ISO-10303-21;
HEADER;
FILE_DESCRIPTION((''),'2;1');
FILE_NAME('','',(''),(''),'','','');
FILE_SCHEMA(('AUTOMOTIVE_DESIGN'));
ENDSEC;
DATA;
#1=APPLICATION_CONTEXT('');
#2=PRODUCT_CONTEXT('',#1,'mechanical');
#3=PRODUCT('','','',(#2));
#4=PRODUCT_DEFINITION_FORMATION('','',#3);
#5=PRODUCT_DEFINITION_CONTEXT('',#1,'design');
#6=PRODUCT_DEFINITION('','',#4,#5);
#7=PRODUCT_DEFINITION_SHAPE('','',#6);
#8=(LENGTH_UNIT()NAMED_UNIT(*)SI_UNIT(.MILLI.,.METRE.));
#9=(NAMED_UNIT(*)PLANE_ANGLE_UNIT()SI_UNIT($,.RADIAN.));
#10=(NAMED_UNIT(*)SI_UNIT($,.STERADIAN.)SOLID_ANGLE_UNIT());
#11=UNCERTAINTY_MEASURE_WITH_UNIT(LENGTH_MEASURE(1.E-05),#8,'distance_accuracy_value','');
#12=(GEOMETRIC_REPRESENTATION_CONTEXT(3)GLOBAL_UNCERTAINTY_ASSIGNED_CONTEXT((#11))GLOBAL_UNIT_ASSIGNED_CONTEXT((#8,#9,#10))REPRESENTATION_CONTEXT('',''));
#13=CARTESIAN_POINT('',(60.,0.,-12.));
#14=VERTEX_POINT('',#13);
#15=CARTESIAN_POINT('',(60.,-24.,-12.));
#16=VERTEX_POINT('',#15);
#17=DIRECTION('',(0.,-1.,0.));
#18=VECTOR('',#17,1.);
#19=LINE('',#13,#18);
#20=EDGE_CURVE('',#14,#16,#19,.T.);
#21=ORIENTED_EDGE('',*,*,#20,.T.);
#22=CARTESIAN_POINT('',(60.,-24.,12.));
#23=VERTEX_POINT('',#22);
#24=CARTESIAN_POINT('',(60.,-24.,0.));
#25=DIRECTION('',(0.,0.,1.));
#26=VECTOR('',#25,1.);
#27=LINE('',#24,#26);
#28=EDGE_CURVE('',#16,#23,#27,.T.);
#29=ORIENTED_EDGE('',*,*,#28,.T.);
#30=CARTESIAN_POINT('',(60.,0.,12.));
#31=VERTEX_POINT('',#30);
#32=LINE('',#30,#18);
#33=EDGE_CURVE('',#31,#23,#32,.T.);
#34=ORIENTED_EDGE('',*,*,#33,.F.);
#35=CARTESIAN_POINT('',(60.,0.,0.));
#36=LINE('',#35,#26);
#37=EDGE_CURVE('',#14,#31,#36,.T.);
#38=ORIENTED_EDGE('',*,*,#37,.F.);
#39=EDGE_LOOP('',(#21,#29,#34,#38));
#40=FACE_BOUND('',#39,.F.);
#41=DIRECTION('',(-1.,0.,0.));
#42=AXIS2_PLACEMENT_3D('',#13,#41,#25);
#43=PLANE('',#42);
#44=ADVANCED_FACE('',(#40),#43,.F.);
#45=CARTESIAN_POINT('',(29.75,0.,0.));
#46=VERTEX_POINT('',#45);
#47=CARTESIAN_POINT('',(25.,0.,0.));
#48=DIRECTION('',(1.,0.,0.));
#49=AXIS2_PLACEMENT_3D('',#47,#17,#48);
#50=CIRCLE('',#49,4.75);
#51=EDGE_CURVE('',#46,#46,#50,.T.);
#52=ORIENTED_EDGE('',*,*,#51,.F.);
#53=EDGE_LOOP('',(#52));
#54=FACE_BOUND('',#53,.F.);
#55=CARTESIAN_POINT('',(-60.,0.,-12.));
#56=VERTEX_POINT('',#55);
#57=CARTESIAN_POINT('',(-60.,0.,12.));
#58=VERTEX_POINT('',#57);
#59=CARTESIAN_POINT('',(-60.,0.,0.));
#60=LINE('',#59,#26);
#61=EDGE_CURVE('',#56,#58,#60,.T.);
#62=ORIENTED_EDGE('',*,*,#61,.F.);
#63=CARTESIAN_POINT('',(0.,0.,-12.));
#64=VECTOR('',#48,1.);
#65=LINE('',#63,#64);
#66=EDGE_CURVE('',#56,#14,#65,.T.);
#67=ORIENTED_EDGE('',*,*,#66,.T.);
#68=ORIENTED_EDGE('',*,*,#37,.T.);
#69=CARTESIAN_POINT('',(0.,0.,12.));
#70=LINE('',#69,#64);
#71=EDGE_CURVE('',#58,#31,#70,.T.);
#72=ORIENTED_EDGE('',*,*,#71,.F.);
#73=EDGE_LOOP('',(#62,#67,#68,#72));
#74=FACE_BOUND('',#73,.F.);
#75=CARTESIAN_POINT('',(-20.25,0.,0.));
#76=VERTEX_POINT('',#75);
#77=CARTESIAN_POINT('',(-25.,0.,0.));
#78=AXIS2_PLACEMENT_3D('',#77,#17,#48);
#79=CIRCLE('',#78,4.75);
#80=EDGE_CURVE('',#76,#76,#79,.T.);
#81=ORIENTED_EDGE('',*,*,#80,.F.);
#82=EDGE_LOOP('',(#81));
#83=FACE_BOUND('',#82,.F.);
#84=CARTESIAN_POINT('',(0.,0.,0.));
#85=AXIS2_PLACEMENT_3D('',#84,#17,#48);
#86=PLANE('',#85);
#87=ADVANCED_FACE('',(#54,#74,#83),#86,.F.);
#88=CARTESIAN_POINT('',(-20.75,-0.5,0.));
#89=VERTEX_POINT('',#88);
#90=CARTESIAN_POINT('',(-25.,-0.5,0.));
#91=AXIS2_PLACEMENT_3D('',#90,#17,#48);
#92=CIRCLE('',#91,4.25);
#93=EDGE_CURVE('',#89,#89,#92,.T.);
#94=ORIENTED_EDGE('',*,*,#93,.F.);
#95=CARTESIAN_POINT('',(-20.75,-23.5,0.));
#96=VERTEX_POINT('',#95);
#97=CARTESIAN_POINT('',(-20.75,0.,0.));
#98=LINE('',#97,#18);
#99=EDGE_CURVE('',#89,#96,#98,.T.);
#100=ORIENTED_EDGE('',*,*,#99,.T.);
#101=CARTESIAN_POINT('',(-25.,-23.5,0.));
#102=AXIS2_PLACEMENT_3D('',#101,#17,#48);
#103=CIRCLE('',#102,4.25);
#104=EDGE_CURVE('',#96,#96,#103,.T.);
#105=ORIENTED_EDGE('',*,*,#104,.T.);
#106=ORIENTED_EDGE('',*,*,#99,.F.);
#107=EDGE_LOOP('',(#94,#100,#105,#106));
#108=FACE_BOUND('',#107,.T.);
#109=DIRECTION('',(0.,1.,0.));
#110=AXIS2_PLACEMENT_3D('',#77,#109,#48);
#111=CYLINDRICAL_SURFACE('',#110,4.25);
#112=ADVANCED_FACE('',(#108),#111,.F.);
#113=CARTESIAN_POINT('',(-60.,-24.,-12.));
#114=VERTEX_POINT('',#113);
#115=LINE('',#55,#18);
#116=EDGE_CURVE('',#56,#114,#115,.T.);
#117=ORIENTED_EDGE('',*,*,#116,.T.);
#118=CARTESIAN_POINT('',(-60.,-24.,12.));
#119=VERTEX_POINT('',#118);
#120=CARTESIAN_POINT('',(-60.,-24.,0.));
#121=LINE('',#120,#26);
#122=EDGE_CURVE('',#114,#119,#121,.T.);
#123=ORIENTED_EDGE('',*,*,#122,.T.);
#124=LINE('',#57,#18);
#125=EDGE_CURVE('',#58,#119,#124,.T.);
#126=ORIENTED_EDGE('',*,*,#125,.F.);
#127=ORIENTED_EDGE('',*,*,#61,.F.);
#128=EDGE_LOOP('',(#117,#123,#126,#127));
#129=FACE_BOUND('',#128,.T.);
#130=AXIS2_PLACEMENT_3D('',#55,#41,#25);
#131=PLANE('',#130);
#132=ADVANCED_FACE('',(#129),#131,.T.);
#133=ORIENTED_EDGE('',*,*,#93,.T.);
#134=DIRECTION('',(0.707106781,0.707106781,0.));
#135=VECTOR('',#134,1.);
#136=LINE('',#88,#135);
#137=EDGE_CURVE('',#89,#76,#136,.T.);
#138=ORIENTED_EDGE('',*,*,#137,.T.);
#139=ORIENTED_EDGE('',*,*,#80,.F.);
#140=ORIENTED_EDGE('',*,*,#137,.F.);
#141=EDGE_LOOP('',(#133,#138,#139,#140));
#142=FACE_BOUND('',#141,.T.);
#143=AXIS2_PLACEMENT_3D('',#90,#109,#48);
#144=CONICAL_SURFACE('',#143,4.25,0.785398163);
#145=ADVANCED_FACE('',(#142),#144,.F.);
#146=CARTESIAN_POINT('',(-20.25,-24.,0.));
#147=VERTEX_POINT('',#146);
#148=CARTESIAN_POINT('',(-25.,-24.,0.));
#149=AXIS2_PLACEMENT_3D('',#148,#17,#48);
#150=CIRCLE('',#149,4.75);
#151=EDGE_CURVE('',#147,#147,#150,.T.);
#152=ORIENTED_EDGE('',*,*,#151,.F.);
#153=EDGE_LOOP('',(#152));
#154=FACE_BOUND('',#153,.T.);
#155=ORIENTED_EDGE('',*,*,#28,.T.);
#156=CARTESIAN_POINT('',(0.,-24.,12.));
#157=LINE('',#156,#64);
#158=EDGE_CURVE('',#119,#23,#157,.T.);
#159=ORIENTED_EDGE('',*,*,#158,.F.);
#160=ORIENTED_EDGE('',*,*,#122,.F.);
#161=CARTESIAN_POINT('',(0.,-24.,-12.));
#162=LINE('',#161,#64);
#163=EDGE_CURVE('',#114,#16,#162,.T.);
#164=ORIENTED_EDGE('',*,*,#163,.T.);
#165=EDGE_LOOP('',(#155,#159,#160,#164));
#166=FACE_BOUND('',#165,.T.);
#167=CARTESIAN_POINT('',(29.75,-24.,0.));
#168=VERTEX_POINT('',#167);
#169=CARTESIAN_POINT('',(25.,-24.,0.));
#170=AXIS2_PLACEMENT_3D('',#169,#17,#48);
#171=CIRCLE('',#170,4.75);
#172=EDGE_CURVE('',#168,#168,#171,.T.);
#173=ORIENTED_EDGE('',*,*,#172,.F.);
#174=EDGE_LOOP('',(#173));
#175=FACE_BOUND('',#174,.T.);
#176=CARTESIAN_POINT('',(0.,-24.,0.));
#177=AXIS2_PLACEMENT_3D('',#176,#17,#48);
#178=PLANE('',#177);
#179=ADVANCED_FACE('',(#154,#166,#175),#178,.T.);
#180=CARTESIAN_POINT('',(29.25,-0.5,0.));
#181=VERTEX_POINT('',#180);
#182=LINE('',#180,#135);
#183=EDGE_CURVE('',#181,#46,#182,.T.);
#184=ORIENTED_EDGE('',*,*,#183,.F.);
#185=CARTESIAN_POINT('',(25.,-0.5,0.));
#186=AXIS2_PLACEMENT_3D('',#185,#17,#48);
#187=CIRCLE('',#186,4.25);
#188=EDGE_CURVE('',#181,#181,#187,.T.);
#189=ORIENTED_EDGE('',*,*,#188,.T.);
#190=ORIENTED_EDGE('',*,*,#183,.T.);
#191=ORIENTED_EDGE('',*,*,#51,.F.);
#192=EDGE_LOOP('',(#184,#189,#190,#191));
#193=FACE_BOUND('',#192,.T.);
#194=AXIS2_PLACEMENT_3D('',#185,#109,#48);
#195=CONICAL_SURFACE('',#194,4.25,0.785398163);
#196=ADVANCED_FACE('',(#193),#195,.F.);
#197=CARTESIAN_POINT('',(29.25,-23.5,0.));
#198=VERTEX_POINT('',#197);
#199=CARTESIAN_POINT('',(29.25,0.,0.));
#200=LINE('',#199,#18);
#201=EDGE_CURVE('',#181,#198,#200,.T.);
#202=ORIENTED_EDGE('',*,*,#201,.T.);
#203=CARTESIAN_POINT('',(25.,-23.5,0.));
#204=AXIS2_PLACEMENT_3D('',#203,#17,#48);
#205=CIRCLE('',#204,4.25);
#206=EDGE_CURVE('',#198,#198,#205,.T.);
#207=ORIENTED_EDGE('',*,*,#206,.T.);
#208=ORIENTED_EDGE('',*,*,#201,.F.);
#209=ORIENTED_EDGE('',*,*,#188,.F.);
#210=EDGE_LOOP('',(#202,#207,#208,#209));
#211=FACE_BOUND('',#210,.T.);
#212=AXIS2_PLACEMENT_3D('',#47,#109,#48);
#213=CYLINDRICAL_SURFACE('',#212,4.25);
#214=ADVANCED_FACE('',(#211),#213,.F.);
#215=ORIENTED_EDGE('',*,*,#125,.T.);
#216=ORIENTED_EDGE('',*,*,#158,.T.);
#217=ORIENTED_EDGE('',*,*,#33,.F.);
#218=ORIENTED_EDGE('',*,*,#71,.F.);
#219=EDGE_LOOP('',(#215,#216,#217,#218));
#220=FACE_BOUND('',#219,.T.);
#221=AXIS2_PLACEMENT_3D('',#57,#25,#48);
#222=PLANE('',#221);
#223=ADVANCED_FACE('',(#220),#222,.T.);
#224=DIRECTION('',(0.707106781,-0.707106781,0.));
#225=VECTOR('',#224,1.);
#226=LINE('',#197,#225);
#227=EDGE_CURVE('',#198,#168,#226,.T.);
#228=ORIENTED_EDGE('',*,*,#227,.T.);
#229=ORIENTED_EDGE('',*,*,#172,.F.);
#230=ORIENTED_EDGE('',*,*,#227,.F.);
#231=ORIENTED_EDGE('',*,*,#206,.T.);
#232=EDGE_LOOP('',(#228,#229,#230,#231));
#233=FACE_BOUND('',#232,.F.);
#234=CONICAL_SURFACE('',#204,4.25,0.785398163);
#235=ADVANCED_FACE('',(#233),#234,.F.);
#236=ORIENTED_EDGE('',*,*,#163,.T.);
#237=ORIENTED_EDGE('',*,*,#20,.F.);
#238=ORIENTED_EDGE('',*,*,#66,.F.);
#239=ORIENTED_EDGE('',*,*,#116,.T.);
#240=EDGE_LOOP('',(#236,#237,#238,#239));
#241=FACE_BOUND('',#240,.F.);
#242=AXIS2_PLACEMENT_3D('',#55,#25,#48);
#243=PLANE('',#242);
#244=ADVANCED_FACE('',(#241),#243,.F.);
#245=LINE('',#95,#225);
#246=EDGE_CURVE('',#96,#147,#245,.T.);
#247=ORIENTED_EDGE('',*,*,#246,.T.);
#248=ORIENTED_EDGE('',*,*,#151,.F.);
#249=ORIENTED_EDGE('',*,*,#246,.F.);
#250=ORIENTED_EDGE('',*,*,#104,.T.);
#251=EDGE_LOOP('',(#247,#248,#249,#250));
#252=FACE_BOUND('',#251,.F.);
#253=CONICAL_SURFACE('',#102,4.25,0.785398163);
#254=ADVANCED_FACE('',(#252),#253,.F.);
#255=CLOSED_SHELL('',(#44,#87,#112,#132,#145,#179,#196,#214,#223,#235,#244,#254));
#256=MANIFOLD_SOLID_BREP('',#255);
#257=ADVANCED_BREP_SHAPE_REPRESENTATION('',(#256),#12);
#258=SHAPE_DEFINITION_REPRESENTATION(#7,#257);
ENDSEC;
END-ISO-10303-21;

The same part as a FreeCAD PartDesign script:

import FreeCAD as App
import Part
import Sketcher
from FreeCAD import Vector
Q = App.Units.Quantity


def edges_at(feature, points):
    """Names of the edges that pass closest to the given points."""
    edges = feature.Shape.Edges
    near = lambda p: min(range(len(edges)), key=lambda i: edges[i].distToShape(Part.Vertex(*p))[0])
    return sorted({f"Edge{near(p) + 1}" for p in points})

doc = App.newDocument("Part")
body = doc.addObject("PartDesign::Body", "Body")

# Sketch on XZ plane
sketch1 = body.newObject("Sketcher::SketchObject", "Sketch")
sketch1.AttachmentSupport = (doc.getObject("XZ_Plane"), [""])
sketch1.MapMode = "FlatFace"
sketch1.addGeometry([
    Part.LineSegment(Vector(-60, 12, 0), Vector(-60, -12, 0)),  # 0
    Part.LineSegment(Vector(-60, -12, 0), Vector(60, -12, 0)),  # 1
    Part.LineSegment(Vector(60, -12, 0), Vector(60, 12, 0)),  # 2
    Part.LineSegment(Vector(60, 12, 0), Vector(-60, 12, 0)),  # 3
    Part.Circle(Vector(-25, 0, 0), Vector(0, 0, 1), 4.25),  # 4
    Part.Circle(Vector(25, 0, 0), Vector(0, 0, 1), 4.25),  # 5
], False)
sketch1.addConstraint([
    Sketcher.Constraint("Coincident", 0, 2, 1, 1),
    Sketcher.Constraint("Coincident", 1, 2, 2, 1),
    Sketcher.Constraint("Coincident", 2, 2, 3, 1),
    Sketcher.Constraint("Coincident", 3, 2, 0, 1),
    Sketcher.Constraint("Vertical", 0),
    Sketcher.Constraint("Horizontal", 1),
    Sketcher.Constraint("Vertical", 2),
    Sketcher.Constraint("Horizontal", 3),
    Sketcher.Constraint("Equal", 4, 5),
    Sketcher.Constraint("Symmetric", 4, 3, 5, 3, -1, 1),
    Sketcher.Constraint("Symmetric", 0, 2, 2, 2, -1, 1),
    Sketcher.Constraint("PointOnObject", 4, 3, -1),
    Sketcher.Constraint("Diameter", 4, Q("8.5 mm")),
    Sketcher.Constraint("DistanceX", 1, 1, 1, 2, Q("120 mm")),
    Sketcher.Constraint("DistanceY", 0, 2, 0, 1, Q("24 mm")),
    Sketcher.Constraint("DistanceX", 4, 3, -1, 1, Q("25 mm")),
])
pad1 = body.newObject("PartDesign::Pad", "Pad")
pad1.Profile = sketch1
pad1.Length = 24
doc.recompute()

chamfer = body.newObject("PartDesign::Chamfer", "Chamfer")
chamfer.Base = (pad1, edges_at(pad1, [
    (-20.75, -12, 0),
    (-29.25, 0, 0),
    (-29.25, -24, 0),
    (29.25, -12, 0),
    (20.75, 0, 0),
    (20.75, -24, 0),
]))
chamfer.Size = 0.5

doc.recompute()
